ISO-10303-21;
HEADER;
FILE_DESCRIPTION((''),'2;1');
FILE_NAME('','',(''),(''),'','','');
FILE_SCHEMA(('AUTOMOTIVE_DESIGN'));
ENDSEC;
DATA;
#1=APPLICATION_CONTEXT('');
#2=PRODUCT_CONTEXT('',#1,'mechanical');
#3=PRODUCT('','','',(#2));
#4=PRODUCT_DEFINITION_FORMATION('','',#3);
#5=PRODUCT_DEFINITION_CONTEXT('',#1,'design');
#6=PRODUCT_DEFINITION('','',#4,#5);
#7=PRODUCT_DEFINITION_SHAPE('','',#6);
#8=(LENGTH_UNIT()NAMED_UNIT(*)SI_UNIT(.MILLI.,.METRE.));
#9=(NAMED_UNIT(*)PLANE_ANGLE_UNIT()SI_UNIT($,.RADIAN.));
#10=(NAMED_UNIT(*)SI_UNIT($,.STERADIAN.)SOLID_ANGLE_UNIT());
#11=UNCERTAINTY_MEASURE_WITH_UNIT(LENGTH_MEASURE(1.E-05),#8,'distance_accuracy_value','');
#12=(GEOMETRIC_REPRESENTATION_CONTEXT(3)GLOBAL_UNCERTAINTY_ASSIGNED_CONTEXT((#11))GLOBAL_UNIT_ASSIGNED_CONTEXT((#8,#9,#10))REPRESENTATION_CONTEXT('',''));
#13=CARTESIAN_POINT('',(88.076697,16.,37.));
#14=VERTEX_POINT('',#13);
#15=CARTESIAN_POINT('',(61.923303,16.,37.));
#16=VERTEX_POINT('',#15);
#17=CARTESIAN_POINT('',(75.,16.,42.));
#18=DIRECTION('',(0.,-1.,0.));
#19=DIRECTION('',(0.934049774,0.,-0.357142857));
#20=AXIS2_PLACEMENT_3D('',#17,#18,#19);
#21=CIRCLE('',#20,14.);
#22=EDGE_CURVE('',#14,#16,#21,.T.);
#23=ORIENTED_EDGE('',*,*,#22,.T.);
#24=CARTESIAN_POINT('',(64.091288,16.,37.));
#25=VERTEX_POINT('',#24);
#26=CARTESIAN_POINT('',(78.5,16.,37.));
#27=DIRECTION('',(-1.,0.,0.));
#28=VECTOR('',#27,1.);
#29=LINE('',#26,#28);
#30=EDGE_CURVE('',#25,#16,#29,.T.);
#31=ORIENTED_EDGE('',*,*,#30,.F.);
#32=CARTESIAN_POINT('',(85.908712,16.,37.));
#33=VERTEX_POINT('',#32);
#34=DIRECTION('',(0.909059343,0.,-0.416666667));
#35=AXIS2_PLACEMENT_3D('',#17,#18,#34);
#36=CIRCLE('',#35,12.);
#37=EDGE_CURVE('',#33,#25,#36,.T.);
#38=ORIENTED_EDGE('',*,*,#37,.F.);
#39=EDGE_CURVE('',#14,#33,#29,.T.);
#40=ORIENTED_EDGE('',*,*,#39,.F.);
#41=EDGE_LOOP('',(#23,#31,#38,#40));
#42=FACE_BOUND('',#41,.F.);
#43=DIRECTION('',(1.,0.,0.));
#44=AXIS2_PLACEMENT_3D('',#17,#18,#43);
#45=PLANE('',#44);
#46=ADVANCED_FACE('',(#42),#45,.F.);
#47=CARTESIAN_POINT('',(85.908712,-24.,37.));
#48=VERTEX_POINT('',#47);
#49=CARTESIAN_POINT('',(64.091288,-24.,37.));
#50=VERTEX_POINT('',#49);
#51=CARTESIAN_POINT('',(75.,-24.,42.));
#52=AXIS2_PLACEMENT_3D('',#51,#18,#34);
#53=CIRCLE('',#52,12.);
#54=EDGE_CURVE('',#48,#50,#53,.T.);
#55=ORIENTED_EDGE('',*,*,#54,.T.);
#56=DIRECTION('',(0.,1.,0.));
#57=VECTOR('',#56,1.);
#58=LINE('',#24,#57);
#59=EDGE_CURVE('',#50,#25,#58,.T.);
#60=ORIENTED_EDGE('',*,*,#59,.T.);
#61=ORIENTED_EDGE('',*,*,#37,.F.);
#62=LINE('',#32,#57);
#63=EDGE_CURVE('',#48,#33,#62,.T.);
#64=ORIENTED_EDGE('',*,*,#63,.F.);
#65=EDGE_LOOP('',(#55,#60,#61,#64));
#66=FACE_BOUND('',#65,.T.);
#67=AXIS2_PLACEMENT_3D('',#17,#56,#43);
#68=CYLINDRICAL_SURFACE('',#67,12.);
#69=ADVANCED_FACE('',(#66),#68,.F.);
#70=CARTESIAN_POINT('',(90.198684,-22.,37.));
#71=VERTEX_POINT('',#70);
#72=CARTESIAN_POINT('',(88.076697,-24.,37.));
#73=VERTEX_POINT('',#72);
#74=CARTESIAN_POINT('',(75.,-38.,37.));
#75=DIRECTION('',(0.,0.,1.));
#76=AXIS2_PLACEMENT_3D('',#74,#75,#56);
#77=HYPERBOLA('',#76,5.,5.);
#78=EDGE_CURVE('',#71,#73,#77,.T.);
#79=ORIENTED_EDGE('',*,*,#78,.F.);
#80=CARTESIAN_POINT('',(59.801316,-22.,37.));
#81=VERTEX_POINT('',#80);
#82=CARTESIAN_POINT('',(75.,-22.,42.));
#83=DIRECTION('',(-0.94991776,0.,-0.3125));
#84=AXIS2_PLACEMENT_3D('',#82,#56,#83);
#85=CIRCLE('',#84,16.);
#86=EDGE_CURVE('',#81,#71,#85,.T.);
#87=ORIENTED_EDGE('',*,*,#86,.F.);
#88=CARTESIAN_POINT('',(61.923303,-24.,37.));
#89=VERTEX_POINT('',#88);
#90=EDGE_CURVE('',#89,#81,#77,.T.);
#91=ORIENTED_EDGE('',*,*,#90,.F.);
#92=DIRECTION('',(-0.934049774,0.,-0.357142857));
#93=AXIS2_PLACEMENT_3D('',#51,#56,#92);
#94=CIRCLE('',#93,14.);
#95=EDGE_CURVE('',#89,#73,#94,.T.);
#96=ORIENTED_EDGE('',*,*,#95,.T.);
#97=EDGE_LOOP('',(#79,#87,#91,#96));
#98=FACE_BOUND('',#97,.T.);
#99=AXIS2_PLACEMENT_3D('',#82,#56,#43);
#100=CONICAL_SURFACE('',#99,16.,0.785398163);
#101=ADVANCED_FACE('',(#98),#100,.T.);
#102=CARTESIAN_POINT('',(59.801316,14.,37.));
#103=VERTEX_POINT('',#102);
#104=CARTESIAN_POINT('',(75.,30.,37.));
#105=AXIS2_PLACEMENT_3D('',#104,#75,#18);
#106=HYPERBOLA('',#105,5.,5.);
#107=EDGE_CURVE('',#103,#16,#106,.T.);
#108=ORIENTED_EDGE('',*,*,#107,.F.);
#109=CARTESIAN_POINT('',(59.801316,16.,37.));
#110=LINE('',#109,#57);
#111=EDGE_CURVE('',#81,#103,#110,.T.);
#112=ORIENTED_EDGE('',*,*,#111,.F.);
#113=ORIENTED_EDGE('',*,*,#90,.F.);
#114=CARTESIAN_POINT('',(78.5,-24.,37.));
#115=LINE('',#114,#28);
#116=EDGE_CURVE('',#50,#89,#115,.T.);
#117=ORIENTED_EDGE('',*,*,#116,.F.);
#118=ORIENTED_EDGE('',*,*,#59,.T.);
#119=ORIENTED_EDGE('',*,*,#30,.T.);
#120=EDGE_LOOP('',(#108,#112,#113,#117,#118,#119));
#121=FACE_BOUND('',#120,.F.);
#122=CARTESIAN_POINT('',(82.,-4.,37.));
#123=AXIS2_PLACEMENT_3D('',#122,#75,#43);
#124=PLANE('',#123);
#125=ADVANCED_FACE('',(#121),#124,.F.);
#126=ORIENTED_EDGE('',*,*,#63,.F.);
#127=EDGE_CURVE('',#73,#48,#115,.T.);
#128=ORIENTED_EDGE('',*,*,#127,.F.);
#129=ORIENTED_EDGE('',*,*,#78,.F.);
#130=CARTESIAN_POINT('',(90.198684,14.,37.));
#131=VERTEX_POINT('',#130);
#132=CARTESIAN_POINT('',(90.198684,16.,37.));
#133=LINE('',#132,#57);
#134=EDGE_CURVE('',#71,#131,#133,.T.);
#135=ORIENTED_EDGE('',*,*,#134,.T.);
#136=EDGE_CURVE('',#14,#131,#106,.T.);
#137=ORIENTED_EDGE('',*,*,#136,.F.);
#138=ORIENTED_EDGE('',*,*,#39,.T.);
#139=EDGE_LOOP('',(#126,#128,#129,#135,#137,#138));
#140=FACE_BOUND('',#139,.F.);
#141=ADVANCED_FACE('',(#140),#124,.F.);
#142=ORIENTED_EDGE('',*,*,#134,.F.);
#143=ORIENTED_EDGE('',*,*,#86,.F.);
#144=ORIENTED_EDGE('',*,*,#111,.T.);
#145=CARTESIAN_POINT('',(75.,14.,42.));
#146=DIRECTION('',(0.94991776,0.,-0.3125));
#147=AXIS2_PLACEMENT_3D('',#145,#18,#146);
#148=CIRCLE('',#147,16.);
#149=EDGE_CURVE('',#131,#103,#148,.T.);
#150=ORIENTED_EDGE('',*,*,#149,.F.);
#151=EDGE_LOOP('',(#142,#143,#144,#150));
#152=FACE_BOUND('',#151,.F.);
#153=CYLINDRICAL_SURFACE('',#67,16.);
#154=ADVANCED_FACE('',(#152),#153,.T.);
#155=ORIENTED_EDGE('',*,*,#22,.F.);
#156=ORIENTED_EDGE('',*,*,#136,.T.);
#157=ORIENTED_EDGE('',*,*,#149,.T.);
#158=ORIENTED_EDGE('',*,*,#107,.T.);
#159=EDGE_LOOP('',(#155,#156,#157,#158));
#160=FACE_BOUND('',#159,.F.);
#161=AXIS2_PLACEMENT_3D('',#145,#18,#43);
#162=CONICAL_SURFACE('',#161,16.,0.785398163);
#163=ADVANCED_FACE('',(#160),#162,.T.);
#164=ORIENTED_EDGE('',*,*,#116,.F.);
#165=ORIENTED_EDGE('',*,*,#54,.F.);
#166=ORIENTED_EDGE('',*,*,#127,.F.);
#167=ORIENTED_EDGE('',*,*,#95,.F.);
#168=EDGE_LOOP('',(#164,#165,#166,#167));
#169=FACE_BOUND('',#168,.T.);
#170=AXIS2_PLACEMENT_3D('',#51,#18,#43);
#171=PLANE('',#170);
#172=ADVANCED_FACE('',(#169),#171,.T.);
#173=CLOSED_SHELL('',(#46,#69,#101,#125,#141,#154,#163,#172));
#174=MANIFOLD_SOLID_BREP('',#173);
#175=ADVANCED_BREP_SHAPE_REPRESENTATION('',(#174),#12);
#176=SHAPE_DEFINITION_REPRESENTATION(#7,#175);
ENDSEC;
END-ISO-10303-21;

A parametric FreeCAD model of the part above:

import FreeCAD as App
import Part
import Sketcher

V = App.Vector


def edges_at(feature, points):
    """Names of the edges that pass closest to the given points."""
    edges = feature.Shape.Edges
    near = lambda p: min(range(len(edges)), key=lambda i: edges[i].distToShape(Part.Vertex(*p))[0])
    return sorted({f"Edge{near(p) + 1}" for p in points})


def add_polygon(sketch, points):
    """Adds a closed chain of lines whose ends are joined by coincident constraints."""
    first, n = sketch.GeometryCount, len(points)
    for a, b in zip(points, points[1:] + points[:1]):
        sketch.addGeometry(Part.LineSegment(App.Vector(*a, 0), App.Vector(*b, 0)), False)
    for i in range(n):
        sketch.addConstraint(Sketcher.Constraint("Coincident", first + i, 2, first + (i + 1) % n, 1))

doc = App.newDocument("Part")
body = doc.addObject("PartDesign::Body", "Body")

sketch1 = doc.addObject("Sketcher::SketchObject", "Sketch")
body.addObject(sketch1)
sketch1.AttachmentSupport = (doc.XY_Plane, [""])
sketch1.MapMode = "FlatFace"
sketch1.AttachmentOffset = App.Placement(V(0, 0, -63), App.Rotation())
add_polygon(sketch1, [(32, 46), (32, -54), (132, -54), (132, 46)])
sketch1.addConstraint([
    Sketcher.Constraint("Vertical", 0),
    Sketcher.Constraint("Horizontal", 1),
    Sketcher.Constraint("Vertical", 2),
    Sketcher.Constraint("Horizontal", 3),
    Sketcher.Constraint("Equal", 3, 0),
    Sketcher.Constraint("DistanceX", 1, 1, 1, 2, 100.0),
    Sketcher.Constraint("DistanceX", -1, 1, 0, 2, 32.0),
    Sketcher.Constraint("DistanceY", 0, 2, -1, 1, 54.0),
])
pad1 = doc.addObject("PartDesign::Pad", "Pad")
body.addObject(pad1)
pad1.Profile = sketch1
pad1.Length = 100
body2 = doc.addObject("PartDesign::Body", "Body001")

sketch2 = doc.addObject("Sketcher::SketchObject", "Sketch001")
body2.addObject(sketch2)
sketch2.AttachmentSupport = (doc.getObject("XZ_Plane001"), [""])
sketch2.MapMode = "FlatFace"
sketch2.AttachmentOffset = App.Placement(V(0, 0, -16), App.Rotation())
sketch2.addGeometry([
    Part.Circle(V(75, 42, 0), V(0, 0, 1), 16),
    Part.Circle(V(75, 42, 0), V(0, 0, 1), 12),
], False)
sketch2.addConstraint([
    Sketcher.Constraint("Coincident", 1, 3, 0, 3),
    Sketcher.Constraint("Diameter", 0, 32.0),
    Sketcher.Constraint("Diameter", 1, 24.0),
    Sketcher.Constraint("DistanceX", -1, 1, 0, 3, 75.0),
    Sketcher.Constraint("DistanceY", -1, 1, 0, 3, 42.0),
])
pad2 = doc.addObject("PartDesign::Pad", "Pad001")
body2.addObject(pad2)
pad2.Profile = sketch2
pad2.Length = 40
doc.recompute()

chamfer = doc.addObject("PartDesign::Chamfer", "Chamfer")
body2.addObject(chamfer)
chamfer.Base = (pad2, edges_at(pad2, [(59, -24, 42), (59, 16, 42)]))
chamfer.Size = 2
doc.recompute()

boolean = doc.addObject("PartDesign::Boolean", "Boolean")
body2.addObject(boolean)
boolean.Type = "Cut"
boolean.addObjects([body])

doc.recompute()
